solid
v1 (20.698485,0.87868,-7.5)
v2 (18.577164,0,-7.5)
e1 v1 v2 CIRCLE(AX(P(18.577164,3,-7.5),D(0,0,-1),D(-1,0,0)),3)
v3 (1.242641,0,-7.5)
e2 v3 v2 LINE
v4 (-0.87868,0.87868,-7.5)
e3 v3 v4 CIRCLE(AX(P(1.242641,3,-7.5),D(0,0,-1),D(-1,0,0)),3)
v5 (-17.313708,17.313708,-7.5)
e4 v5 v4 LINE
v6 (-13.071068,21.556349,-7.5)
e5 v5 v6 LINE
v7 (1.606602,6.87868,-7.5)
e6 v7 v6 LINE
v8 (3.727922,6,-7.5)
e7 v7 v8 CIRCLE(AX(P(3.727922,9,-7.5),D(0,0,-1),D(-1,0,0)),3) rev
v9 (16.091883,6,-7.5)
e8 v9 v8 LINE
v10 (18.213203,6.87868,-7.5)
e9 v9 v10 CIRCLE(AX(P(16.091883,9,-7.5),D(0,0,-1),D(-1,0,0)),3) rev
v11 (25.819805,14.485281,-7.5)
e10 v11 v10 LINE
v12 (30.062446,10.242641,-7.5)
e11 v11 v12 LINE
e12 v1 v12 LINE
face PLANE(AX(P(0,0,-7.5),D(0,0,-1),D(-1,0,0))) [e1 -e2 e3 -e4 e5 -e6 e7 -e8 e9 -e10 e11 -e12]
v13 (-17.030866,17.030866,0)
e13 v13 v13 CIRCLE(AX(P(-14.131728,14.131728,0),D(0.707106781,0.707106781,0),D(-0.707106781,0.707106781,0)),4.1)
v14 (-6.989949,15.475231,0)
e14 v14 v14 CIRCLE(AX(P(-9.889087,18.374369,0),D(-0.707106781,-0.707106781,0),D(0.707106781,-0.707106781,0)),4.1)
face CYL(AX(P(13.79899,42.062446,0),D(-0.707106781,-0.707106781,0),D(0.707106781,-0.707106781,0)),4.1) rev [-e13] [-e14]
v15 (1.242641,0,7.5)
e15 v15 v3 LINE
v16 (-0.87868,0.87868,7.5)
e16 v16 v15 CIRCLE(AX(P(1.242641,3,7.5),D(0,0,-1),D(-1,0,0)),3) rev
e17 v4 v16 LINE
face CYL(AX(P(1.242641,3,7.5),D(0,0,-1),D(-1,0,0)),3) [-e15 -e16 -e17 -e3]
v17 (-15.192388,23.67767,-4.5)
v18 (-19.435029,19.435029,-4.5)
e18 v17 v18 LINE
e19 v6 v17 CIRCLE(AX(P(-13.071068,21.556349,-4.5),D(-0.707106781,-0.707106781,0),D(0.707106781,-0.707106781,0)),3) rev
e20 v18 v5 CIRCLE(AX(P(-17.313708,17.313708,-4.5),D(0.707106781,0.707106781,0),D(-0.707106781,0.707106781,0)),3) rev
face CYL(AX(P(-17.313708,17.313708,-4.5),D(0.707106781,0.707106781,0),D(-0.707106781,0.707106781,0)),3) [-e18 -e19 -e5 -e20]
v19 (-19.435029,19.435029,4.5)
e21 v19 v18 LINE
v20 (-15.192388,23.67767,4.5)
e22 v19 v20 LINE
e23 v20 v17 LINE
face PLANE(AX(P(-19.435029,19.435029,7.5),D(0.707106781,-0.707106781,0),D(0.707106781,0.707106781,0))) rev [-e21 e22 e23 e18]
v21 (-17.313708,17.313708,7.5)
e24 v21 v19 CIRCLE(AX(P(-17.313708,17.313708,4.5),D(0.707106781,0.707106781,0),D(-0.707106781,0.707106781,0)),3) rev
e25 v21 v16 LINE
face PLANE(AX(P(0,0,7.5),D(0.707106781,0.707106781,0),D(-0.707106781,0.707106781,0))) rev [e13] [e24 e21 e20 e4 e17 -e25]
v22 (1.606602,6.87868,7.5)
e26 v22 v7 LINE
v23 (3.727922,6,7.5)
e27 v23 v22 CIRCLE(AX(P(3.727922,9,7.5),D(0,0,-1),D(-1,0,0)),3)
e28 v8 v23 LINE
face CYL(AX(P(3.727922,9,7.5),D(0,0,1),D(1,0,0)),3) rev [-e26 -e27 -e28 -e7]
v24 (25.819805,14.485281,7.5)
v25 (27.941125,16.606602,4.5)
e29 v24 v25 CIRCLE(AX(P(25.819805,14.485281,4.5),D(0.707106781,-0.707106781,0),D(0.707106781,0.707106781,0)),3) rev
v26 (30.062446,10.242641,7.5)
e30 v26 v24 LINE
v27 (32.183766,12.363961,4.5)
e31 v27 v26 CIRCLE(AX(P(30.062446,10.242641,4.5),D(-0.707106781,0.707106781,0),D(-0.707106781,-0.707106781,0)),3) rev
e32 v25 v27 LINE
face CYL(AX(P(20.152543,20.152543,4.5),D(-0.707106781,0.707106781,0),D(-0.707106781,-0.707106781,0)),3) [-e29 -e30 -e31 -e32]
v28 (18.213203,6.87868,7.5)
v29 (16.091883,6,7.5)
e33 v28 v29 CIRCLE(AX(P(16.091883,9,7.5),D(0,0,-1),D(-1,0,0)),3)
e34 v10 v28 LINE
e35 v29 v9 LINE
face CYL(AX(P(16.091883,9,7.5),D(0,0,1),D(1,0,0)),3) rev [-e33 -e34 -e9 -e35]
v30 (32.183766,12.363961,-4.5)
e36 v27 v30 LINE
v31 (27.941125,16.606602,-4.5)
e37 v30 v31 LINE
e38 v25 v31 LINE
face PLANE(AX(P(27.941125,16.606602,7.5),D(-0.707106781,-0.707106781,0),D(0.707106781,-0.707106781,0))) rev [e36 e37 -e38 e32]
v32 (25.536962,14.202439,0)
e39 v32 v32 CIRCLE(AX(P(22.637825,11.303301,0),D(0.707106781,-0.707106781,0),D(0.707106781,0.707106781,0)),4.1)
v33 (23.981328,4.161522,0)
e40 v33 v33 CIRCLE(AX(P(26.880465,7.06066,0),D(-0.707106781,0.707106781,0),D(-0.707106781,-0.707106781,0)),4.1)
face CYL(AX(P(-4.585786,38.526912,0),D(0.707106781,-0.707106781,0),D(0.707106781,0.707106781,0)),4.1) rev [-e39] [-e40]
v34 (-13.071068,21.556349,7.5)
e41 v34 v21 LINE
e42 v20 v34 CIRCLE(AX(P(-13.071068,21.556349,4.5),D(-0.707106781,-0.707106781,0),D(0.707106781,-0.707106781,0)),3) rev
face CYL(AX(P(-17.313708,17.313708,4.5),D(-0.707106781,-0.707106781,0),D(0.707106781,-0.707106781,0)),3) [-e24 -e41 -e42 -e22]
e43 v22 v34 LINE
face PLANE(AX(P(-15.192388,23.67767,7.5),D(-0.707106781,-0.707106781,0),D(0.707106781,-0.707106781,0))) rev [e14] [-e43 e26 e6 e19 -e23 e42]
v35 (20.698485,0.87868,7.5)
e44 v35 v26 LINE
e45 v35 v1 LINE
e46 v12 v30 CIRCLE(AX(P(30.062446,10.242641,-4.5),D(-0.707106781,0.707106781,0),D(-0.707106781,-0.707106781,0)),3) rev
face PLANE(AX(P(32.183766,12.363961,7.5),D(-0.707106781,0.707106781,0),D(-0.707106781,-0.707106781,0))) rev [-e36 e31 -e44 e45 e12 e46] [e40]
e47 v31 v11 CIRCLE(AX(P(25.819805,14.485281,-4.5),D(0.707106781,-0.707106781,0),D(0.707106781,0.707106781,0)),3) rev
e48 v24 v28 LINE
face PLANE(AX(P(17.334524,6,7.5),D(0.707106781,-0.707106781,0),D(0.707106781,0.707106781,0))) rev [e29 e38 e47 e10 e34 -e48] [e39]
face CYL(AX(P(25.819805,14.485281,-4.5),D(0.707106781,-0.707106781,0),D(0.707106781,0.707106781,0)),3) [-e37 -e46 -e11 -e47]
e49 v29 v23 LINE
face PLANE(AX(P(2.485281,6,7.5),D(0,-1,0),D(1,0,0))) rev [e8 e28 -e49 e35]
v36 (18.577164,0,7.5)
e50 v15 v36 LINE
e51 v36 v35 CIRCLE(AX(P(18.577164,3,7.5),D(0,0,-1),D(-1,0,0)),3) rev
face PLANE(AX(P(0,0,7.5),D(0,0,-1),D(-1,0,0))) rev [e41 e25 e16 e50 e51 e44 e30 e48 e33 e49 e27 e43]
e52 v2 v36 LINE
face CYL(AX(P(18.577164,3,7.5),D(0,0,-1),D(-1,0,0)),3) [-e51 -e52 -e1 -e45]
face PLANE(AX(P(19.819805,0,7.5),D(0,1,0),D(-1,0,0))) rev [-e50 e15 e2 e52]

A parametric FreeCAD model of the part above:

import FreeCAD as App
import Part
import Sketcher
from FreeCAD import Vector
Q = App.Units.Quantity


def edges_at(feature, points):
    """Names of the edges that pass closest to the given points."""
    edges = feature.Shape.Edges
    near = lambda p: min(range(len(edges)), key=lambda i: edges[i].distToShape(Part.Vertex(*p))[0])
    return sorted({f"Edge{near(p) + 1}" for p in points})


def add_polygon(sketch, points):
    """Adds a closed chain of lines whose ends are joined by coincident constraints."""
    first, n = sketch.GeometryCount, len(points)
    for a, b in zip(points, points[1:] + points[:1]):
        sketch.addGeometry(Part.LineSegment(App.Vector(*a, 0), App.Vector(*b, 0)), False)
    for i in range(n):
        sketch.addConstraint(Sketcher.Constraint("Coincident", first + i, 2, first + (i + 1) % n, 1))

doc = App.newDocument("Part")
params = doc.addObject("Spreadsheet::Sheet", "Params")
for row, (alias, value) in enumerate([
    ("sketch1_length", "6 mm"),
    ("sketch1_length2", "15 mm"),
    ("sketch1_length3", "25 mm"),
    ("pad1_length", "15 mm"),
    ("sketch2_diameter", "8.2 mm"),
    ("sketch3_diameter", "8.2 mm"),
    ("fillet_radius", "3 mm"),
], start=1):
    params.set(f"A{row}", alias)
    params.set(f"B{row}", "=" + value)
    params.setAlias(f"B{row}", alias)

body = doc.addObject("PartDesign::Body", "Body")

# Sketch on XY plane
sketch1 = body.newObject("Sketcher::SketchObject", "Sketch")
sketch1.AttachmentSupport = (doc.getObject("XY_Plane"), [""])
sketch1.MapMode = "FlatFace"
add_polygon(sketch1, [(-19, 19), (0, 0), (20, 0), (32, 12), (28, 17), (17, 6), (2, 6), (-15, 24)])  # lines 0-7
sketch1.addConstraint(Sketcher.Constraint("Horizontal", 1))
sketch1.addConstraint(Sketcher.Constraint("Horizontal", 5))
sketch1.addConstraint(Sketcher.Constraint("Coincident", 0, 2, -1, 1))
sketch1.addConstraint(Sketcher.Constraint("Perpendicular", 0, 2))
sketch1.addConstraint(Sketcher.Constraint("Perpendicular", 2, 3))
sketch1.addConstraint(Sketcher.Constraint("Perpendicular", 3, 4))
sketch1.addConstraint(Sketcher.Constraint("Perpendicular", 4, 6))
sketch1.addConstraint(Sketcher.Constraint("Perpendicular", 6, 7))
sketch1.addConstraint(Sketcher.Constraint("Equal", 3, 7))
sketch1.addConstraint(Sketcher.Constraint("Angle", 0, Q("-45 deg")))
sketch1.addConstraint(Sketcher.Constraint("Distance", 3, 6.0))
sketch1.addConstraint(Sketcher.Constraint("Distance", 4, 15.0))
sketch1.addConstraint(Sketcher.Constraint("Distance", 6, 25.0))
sketch1.addConstraint(Sketcher.Constraint("DistanceY", -1, 1, 4, 2, 6.0))
sketch1.addConstraint(Sketcher.Constraint("DistanceX", 1, 1, 1, 2, 19.819805))
sketch1.setExpression("Constraints[18]", "Params.sketch1_length")
sketch1.setExpression("Constraints[19]", "Params.sketch1_length2")
sketch1.setExpression("Constraints[20]", "Params.sketch1_length3")
pad1 = body.newObject("PartDesign::Pad", "Pad")
pad1.Profile = sketch1
pad1.setExpression("Length", "Params.pad1_length")
pad1.Midplane = True

# Sketch on an angled plane
sketch2 = body.newObject("Sketcher::SketchObject", "Sketch001")
sketch2.Placement = App.Placement(Vector(0, 0, 0), App.Rotation(Vector(0, 0, 1), Vector(-0.707106781, 0.707106781, 0), Vector(-0.707106781, -0.707106781, 0), "ZXY"))
sketch2.addGeometry(Part.Circle(Vector(0, 20, 0), Vector(0, 0, 1), 4.1), False)
sketch2.addConstraint(Sketcher.Constraint("PointOnObject", 0, 3, -2))
sketch2.addConstraint(Sketcher.Constraint("Diameter", 0, 8.2))
sketch2.addConstraint(Sketcher.Constraint("DistanceY", -1, 1, 0, 3, 19.985281))
sketch2.setExpression("Constraints[1]", "Params.sketch2_diameter")
pocket1 = body.newObject("PartDesign::Pocket", "Pocket")
pocket1.Profile = sketch2
pocket1.Type = "ThroughAll"
pocket1.Midplane = True

# Sketch on an angled plane
sketch3 = body.newObject("Sketcher::SketchObject", "Sketch002")
sketch3.Placement = App.Placement(Vector(9.909903, -9.909903, 0), App.Rotation(Vector(0, 0, -1), Vector(0.707106781, 0.707106781, 0), Vector(0.707106781, -0.707106781, 0), "ZXY"))
sketch3.addGeometry(Part.Circle(Vector(0, 24, 0), Vector(0, 0, 1), 4.1), False)
sketch3.addConstraint(Sketcher.Constraint("PointOnObject", 0, 3, -2))
sketch3.addConstraint(Sketcher.Constraint("Diameter", 0, 8.2))
sketch3.addConstraint(Sketcher.Constraint("DistanceY", -1, 1, 0, 3, 24.0))
sketch3.setExpression("Constraints[1]", "Params.sketch3_diameter")
pocket2 = body.newObject("PartDesign::Pocket", "Pocket001")
pocket2.Profile = sketch3
pocket2.Type = "ThroughAll"
pocket2.Midplane = True
doc.recompute()

fillet = body.newObject("PartDesign::Fillet", "Fillet")
fillet.Base = (pocket2, edges_at(pocket2, [
    (30.062, 14.485, -7.5),
    (30.062, 14.485, 7.5),
    (0, 0, 0),
    (2.485, 6, 0),
    (17.335, 6, 0),
    (19.82, 0, 0),
    (-17.314, 21.556, 7.5),
    (-17.314, 21.556, -7.5),
]))
fillet.setExpression("Radius", "Params.fillet_radius")

doc.recompute()
